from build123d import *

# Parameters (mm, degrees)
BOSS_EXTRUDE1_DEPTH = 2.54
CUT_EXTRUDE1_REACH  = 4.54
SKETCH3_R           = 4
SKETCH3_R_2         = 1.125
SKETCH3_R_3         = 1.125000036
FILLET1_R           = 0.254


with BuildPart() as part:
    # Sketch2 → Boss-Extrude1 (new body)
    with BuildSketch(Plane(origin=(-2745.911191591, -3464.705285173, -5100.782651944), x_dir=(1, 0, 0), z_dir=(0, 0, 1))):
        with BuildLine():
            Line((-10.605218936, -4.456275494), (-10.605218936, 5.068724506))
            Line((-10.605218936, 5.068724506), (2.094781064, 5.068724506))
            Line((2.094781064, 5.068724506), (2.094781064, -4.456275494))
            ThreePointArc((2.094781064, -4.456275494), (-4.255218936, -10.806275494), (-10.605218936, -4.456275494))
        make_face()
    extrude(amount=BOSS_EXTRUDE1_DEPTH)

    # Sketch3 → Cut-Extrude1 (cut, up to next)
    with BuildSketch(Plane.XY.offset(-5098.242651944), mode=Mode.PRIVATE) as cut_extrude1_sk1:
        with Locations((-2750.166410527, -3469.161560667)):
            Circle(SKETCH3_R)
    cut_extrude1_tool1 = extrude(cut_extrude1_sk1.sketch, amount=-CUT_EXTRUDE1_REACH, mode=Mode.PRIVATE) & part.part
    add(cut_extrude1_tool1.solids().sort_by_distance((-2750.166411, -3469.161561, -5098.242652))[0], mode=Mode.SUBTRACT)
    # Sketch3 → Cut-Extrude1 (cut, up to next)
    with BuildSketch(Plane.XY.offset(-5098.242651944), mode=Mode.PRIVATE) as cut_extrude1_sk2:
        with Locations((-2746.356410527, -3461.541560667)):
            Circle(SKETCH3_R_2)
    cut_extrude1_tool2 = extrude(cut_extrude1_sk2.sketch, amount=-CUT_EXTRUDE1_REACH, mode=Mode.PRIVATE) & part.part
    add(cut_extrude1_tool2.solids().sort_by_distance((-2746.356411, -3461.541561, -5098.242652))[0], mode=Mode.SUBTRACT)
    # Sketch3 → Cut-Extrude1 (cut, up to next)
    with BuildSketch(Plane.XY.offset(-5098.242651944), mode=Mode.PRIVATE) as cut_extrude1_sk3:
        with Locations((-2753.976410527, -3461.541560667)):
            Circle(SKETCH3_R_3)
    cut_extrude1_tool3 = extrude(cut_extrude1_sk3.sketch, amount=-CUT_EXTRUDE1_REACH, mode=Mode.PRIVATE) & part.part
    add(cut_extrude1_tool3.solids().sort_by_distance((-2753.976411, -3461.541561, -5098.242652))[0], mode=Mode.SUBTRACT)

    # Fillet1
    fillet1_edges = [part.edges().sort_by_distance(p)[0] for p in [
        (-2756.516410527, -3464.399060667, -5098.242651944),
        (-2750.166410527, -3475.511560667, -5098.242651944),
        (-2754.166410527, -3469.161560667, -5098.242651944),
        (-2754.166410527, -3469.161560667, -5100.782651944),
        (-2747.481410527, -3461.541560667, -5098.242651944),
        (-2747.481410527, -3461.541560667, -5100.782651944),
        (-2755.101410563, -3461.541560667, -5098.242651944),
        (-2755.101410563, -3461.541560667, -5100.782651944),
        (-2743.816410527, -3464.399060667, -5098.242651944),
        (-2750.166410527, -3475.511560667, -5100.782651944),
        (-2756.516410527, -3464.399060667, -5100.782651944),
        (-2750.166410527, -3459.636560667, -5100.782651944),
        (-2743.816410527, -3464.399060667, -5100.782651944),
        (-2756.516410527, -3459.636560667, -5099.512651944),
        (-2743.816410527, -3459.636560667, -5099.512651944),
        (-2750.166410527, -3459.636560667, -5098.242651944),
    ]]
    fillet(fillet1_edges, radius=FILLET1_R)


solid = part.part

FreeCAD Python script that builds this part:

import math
import FreeCAD as App
import Part
import Sketcher
Q = App.Units.Quantity

doc = App.newDocument("Part")
body = doc.addObject("PartDesign::Body", "Body")

# Sketch on XY plane
sketch1 = body.newObject("Sketcher::SketchObject", "Sketch")
sketch1.AttachmentSupport = (doc.getObject("XY_Plane"), [""])
sketch1.MapMode = "FlatFace"
sketch1.AttachmentOffset = App.Placement(App.Vector(0, 0, -5100.782652), App.Rotation())
sketch1.addGeometry([
    Part.LineSegment(App.Vector(-2757, -3460, 0), App.Vector(-2757, -3469, 0)),
    Part.ArcOfCircle(Part.Circle(App.Vector(-2750, -3469, 0), App.Vector(0, 0, 1), 6), math.radians(180), math.radians(360)),
    Part.LineSegment(App.Vector(-2744, -3469, 0), App.Vector(-2744, -3460, 0)),
    Part.LineSegment(App.Vector(-2744, -3460, 0), App.Vector(-2757, -3460, 0)),
], False)
sketch1.addConstraint([
    Sketcher.Constraint("Tangent", 0, 2, 1, 1),
    Sketcher.Constraint("Tangent", 1, 2, 2, 1),
    Sketcher.Constraint("Coincident", 2, 2, 3, 1),
    Sketcher.Constraint("Coincident", 3, 2, 0, 1),
    Sketcher.Constraint("Vertical", 0),
    Sketcher.Constraint("Vertical", 2),
    Sketcher.Constraint("Horizontal", 3),
    Sketcher.Constraint("Radius", 1, Q("0.25 in")),
    Sketcher.Constraint("DistanceY", 0, 2, 0, 1, Q("0.375 in")),
    Sketcher.Constraint("DistanceX", 1, 3, -1, 1, 2750.166411),
    Sketcher.Constraint("DistanceY", 1, 3, -1, 1, 3469.161561),
])
pad1 = body.newObject("PartDesign::Pad", "Pad")
pad1.Profile = sketch1
pad1.Length = Q("0.1 in")

# Sketch on XY plane
sketch2 = body.newObject("Sketcher::SketchObject", "Sketch001")
sketch2.AttachmentSupport = (doc.getObject("XY_Plane"), [""])
sketch2.MapMode = "FlatFace"
sketch2.AttachmentOffset = App.Placement(App.Vector(0, 0, -5098.242652), App.Rotation())
sketch2.addGeometry(Part.Circle(App.Vector(-2750.2, -3469.2, 0), App.Vector(0, 0, 1), 4), False)
sketch2.addConstraint([
    Sketcher.Constraint("Diameter", 0, 8.0),
    Sketcher.Constraint("DistanceX", 0, 3, -1, 1, 2750.166411),
    Sketcher.Constraint("DistanceY", 0, 3, -1, 1, 3469.161561),
])
pocket1 = body.newObject("PartDesign::Pocket", "Pocket")
pocket1.Profile = sketch2
pocket1.Type = "UpToFirst"

# Sketch on XY plane
sketch3 = body.newObject("Sketcher::SketchObject", "Sketch002")
sketch3.AttachmentSupport = (doc.getObject("XY_Plane"), [""])
sketch3.MapMode = "FlatFace"
sketch3.AttachmentOffset = App.Placement(App.Vector(0, 0, -5098.242652), App.Rotation())
sketch3.addGeometry(Part.Circle(App.Vector(-2746.4, -3461.5, 0), App.Vector(0, 0, 1), 1.1), False)
sketch3.addConstraint([
    Sketcher.Constraint("Diameter", 0, 2.25),
    Sketcher.Constraint("DistanceX", 0, 3, -1, 1, 2746.356411),
    Sketcher.Constraint("DistanceY", 0, 3, -1, 1, 3461.541561),
])
pocket2 = body.newObject("PartDesign::Pocket", "Pocket001")
pocket2.Profile = sketch3
pocket2.Type = "UpToFirst"

# Sketch on XY plane
sketch4 = body.newObject("Sketcher::SketchObject", "Sketch003")
sketch4.AttachmentSupport = (doc.getObject("XY_Plane"), [""])
sketch4.MapMode = "FlatFace"
sketch4.AttachmentOffset = App.Placement(App.Vector(0, 0, -5098.242652), App.Rotation())
sketch4.addGeometry(Part.Circle(App.Vector(-2754, -3461.5, 0), App.Vector(0, 0, 1), 1.1), False)
sketch4.addConstraint([
    Sketcher.Constraint("Diameter", 0, 2.25),
    Sketcher.Constraint("DistanceX", 0, 3, -1, 1, 2753.976411),
    Sketcher.Constraint("DistanceY", 0, 3, -1, 1, 3461.541561),
])
pocket3 = body.newObject("PartDesign::Pocket", "Pocket002")
pocket3.Profile = sketch4
pocket3.Type = "UpToFirst"
doc.recompute()

fillet = body.newObject("PartDesign::Fillet", "Fillet")
fillet.Base = (pocket3, ["Edge1"])
fillet.UseAllEdges = True
fillet.Radius = Q("0.01 in")

doc.recompute()
